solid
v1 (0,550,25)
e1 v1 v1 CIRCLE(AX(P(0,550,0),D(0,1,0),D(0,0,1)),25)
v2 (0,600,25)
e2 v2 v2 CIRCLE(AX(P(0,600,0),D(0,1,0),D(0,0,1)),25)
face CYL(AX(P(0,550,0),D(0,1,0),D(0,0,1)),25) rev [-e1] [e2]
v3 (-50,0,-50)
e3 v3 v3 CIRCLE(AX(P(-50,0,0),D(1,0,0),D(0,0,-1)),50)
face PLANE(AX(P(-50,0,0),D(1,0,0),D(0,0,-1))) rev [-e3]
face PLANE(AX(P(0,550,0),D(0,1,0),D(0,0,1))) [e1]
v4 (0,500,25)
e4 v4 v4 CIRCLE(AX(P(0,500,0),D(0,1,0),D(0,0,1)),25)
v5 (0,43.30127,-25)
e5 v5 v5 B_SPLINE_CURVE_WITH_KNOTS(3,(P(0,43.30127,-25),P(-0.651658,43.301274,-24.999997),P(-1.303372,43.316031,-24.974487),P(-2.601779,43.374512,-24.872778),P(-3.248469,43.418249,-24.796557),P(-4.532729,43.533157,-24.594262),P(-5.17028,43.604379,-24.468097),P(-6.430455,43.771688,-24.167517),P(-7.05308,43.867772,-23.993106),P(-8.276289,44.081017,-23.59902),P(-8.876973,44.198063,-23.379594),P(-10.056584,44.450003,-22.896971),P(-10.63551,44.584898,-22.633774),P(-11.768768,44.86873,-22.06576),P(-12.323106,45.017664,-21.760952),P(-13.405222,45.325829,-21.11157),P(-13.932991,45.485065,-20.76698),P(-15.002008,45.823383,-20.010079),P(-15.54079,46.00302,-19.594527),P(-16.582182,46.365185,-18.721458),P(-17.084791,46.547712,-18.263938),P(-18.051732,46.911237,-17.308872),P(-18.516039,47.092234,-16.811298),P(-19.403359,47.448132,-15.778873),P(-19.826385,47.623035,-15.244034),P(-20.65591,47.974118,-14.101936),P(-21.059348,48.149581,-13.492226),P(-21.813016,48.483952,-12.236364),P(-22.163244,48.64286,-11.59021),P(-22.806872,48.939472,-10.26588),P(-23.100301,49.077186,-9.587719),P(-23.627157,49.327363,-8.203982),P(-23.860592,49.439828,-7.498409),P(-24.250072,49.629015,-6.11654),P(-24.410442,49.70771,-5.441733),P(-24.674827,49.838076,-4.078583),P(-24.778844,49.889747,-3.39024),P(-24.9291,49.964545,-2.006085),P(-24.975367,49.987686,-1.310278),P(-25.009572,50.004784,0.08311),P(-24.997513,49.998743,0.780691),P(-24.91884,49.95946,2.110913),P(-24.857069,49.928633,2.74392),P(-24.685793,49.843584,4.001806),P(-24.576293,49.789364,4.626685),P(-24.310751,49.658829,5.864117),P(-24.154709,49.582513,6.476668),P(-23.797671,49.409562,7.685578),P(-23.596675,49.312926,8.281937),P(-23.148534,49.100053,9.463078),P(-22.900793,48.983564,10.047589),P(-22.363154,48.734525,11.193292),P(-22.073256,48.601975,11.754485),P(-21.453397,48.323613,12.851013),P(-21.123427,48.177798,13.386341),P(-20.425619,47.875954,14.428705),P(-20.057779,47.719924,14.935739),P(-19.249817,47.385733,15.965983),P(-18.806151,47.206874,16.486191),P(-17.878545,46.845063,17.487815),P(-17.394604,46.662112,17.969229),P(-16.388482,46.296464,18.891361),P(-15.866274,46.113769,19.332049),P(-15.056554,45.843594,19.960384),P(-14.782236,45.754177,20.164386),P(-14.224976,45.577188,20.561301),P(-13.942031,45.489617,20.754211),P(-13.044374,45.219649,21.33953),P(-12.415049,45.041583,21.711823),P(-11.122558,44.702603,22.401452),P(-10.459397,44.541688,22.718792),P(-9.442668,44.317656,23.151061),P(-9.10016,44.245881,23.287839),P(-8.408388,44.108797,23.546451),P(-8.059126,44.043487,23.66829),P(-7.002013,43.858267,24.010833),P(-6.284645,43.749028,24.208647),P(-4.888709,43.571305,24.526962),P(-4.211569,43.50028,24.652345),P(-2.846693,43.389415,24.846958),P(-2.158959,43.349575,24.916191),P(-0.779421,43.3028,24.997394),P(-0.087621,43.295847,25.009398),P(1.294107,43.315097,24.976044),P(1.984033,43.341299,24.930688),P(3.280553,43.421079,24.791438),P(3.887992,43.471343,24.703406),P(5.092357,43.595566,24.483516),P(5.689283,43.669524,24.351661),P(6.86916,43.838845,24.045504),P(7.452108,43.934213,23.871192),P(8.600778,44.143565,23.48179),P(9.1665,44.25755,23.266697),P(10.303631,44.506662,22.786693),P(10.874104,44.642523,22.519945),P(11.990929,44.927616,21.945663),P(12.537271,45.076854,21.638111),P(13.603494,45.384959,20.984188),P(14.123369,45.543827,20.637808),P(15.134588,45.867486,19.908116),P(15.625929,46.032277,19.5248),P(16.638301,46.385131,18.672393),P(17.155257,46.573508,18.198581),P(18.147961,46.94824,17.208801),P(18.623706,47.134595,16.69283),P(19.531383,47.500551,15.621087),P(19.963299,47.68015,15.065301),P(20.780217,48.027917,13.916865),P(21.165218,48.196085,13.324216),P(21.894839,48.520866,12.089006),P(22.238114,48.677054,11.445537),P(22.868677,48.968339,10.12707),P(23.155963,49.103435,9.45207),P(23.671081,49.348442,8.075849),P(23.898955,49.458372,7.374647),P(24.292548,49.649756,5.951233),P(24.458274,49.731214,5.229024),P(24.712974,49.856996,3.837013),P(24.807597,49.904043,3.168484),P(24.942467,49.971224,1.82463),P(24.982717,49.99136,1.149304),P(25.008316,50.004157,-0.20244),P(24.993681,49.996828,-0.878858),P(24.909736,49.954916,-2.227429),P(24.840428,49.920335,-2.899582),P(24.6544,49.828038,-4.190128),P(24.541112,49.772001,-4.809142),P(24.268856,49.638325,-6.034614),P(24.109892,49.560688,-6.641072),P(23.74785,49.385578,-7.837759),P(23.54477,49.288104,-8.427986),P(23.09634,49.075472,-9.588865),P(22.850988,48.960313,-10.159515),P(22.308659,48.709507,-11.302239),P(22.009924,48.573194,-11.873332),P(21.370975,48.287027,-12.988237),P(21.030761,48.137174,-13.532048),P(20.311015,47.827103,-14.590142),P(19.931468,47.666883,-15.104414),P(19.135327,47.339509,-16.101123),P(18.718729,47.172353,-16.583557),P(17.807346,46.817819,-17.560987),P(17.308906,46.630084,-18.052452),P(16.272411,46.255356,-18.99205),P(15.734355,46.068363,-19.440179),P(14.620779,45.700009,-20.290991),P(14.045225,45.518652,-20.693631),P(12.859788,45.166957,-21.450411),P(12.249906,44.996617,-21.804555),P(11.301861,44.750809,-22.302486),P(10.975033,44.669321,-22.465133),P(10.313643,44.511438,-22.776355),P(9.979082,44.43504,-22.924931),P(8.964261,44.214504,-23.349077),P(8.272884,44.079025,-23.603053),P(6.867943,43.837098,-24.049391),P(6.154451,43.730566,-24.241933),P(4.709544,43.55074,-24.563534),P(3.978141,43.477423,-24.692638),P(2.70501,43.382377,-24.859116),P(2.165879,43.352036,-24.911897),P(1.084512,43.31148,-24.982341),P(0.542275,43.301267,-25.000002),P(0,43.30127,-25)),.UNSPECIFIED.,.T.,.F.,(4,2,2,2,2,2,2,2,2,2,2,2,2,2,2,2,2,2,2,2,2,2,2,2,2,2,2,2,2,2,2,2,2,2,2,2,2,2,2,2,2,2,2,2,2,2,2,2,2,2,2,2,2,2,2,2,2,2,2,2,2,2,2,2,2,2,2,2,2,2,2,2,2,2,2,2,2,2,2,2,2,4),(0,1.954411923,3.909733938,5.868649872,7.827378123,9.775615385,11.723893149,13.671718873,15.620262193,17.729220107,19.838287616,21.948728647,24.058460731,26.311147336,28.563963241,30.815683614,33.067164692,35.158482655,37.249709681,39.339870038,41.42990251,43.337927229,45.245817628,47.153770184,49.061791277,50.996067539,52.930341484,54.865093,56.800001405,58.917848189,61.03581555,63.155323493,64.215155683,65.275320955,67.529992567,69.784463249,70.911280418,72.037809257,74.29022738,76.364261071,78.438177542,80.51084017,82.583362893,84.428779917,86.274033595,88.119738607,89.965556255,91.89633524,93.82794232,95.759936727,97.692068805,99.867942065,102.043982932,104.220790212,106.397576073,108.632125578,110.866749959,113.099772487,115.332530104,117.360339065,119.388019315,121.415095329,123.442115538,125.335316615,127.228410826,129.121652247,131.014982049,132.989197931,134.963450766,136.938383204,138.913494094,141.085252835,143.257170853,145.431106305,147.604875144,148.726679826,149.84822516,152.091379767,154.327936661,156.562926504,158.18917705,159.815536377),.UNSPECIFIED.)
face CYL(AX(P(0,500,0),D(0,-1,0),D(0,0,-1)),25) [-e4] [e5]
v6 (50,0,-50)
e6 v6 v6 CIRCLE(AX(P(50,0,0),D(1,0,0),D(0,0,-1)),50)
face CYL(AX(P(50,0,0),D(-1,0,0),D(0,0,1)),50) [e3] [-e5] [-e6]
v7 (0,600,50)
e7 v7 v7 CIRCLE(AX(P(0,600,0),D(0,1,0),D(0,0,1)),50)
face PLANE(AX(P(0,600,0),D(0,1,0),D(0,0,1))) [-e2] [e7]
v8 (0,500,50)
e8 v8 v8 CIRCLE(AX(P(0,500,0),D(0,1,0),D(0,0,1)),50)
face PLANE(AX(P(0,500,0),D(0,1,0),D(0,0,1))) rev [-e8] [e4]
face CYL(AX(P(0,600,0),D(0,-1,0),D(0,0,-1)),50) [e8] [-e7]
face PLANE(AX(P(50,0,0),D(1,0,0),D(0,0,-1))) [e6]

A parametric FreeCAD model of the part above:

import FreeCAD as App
import Part
import Sketcher
from FreeCAD import Vector
Q = App.Units.Quantity

doc = App.newDocument("Part")
params = doc.addObject("Spreadsheet::Sheet", "Params")
for row, (alias, value) in enumerate([
    ("sketch1_diameter", "100 mm"),
    ("pad1_length", "100 mm"),
    ("sketch2_diameter", "50 mm"),
    ("pad2_length", "500 mm"),
    ("sketch3_diameter", "100 mm"),
    ("pad3_length", "100 mm"),
    ("sketch4_diameter", "50 mm"),
    ("pocket1_length", "50 mm"),
], start=1):
    params.set(f"A{row}", alias)
    params.set(f"B{row}", "=" + value)
    params.setAlias(f"B{row}", alias)

body = doc.addObject("PartDesign::Body", "Body")

# Sketch on YZ plane
sketch1 = body.newObject("Sketcher::SketchObject", "Sketch")
sketch1.AttachmentSupport = (doc.getObject("YZ_Plane"), [""])
sketch1.MapMode = "FlatFace"
sketch1.addGeometry(Part.Circle(Vector(0, 0, 0), Vector(0, 0, 1), 50), False)
sketch1.addConstraint([
    Sketcher.Constraint("Coincident", 0, 3, -1, 1),
    Sketcher.Constraint("Diameter", 0, Q("100 mm")),
])
sketch1.setExpression("Constraints[1]", "Params.sketch1_diameter")
pad1 = body.newObject("PartDesign::Pad", "Pad")
pad1.Profile = sketch1
pad1.setExpression("Length", "Params.pad1_length")
pad1.Midplane = True

# Sketch on XZ plane
sketch2 = body.newObject("Sketcher::SketchObject", "Sketch001")
sketch2.AttachmentSupport = (doc.getObject("XZ_Plane"), [""])
sketch2.MapMode = "FlatFace"
sketch2.addGeometry(Part.Circle(Vector(0, 0, 0), Vector(0, 0, 1), 25), False)
sketch2.addConstraint([
    Sketcher.Constraint("Coincident", 0, 3, -1, 1),
    Sketcher.Constraint("Diameter", 0, Q("50 mm")),
])
sketch2.setExpression("Constraints[1]", "Params.sketch2_diameter")
pad2 = body.newObject("PartDesign::Pad", "Pad001")
pad2.Profile = sketch2
pad2.setExpression("Length", "Params.pad2_length")
pad2.Reversed = True

# Sketch on XZ plane
sketch3 = body.newObject("Sketcher::SketchObject", "Sketch002")
sketch3.AttachmentSupport = (doc.getObject("XZ_Plane"), [""])
sketch3.MapMode = "FlatFace"
sketch3.AttachmentOffset = App.Placement(Vector(0, 0, -500), App.Rotation())
sketch3.addGeometry(Part.Circle(Vector(0, 0, 0), Vector(0, 0, 1), 50), False)
sketch3.addConstraint([
    Sketcher.Constraint("Coincident", 0, 3, -1, 1),
    Sketcher.Constraint("Diameter", 0, Q("100 mm")),
])
sketch3.setExpression("Constraints[1]", "Params.sketch3_diameter")
pad3 = body.newObject("PartDesign::Pad", "Pad002")
pad3.Profile = sketch3
pad3.setExpression("Length", "Params.pad3_length")
pad3.Reversed = True

# Sketch on XZ plane
sketch4 = body.newObject("Sketcher::SketchObject", "Sketch003")
sketch4.AttachmentSupport = (doc.getObject("XZ_Plane"), [""])
sketch4.MapMode = "FlatFace"
sketch4.AttachmentOffset = App.Placement(Vector(0, 0, -550), App.Rotation())
sketch4.addGeometry(Part.Circle(Vector(0, 0, 0), Vector(0, 0, 1), 25), False)
sketch4.addConstraint([
    Sketcher.Constraint("Coincident", 0, 3, -1, 1),
    Sketcher.Constraint("Diameter", 0, Q("50 mm")),
])
sketch4.setExpression("Constraints[1]", "Params.sketch4_diameter")
pocket1 = body.newObject("PartDesign::Pocket", "Pocket")
pocket1.Profile = sketch4
pocket1.setExpression("Length", "Params.pocket1_length")

doc.recompute()
